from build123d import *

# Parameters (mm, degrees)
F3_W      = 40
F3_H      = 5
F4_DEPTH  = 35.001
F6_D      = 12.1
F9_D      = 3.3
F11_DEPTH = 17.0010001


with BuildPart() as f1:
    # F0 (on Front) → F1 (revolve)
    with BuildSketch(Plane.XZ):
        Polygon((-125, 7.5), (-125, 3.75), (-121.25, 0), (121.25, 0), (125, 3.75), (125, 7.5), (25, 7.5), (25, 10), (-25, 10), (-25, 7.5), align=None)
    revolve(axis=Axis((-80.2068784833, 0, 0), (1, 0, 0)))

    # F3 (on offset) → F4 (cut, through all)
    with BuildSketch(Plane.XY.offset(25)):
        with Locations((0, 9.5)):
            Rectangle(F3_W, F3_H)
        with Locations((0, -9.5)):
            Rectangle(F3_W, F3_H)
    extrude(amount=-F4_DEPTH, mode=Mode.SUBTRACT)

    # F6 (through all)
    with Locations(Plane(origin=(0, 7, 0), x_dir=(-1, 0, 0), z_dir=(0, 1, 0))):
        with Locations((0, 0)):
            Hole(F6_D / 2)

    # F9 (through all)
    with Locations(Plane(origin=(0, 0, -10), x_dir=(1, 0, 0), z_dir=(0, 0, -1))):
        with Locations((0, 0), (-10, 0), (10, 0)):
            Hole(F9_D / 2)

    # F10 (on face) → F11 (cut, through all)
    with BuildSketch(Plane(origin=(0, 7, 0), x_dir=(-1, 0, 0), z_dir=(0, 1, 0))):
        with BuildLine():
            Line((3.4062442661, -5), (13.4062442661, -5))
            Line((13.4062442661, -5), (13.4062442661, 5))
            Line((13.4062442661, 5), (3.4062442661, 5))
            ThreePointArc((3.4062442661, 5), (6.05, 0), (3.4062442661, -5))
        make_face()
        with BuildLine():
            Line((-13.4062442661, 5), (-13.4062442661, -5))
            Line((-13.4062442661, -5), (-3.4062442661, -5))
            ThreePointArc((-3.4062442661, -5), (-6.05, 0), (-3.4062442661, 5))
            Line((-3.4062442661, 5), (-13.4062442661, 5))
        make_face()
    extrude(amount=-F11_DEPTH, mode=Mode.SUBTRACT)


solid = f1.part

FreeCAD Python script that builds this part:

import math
import FreeCAD as App
import Part
import Sketcher

V = App.Vector
Q = App.Units.Quantity

doc = App.newDocument("Part")
body = doc.addObject("PartDesign::Body", "Body")

sketch1 = doc.addObject("Sketcher::SketchObject", "Sketch")
body.addObject(sketch1)
sketch1.AttachmentSupport = (doc.XZ_Plane, [""])
sketch1.MapMode = "FlatFace"
sketch1.addGeometry(Part.LineSegment(V(-125, 7.5, 0), V(-125, 3.8, 0)), False)
sketch1.addGeometry(Part.LineSegment(V(-125, 3.8, 0), V(-121.2, 0, 0)), False)
sketch1.addGeometry(Part.LineSegment(V(-121.2, 0, 0), V(121.2, 0, 0)), False)
sketch1.addGeometry(Part.LineSegment(V(121.2, 0, 0), V(125, 3.8, 0)), False)
sketch1.addGeometry(Part.LineSegment(V(125, 3.8, 0), V(125, 7.5, 0)), False)
sketch1.addGeometry(Part.LineSegment(V(125, 7.5, 0), V(25, 7.5, 0)), False)
sketch1.addGeometry(Part.LineSegment(V(25, 7.5, 0), V(25, 10, 0)), False)
sketch1.addGeometry(Part.LineSegment(V(25, 10, 0), V(-25, 10, 0)), False)
sketch1.addGeometry(Part.LineSegment(V(-25, 10, 0), V(-25, 7.5, 0)), False)
sketch1.addGeometry(Part.LineSegment(V(-25, 7.5, 0), V(-125, 7.5, 0)), False)
sketch1.addConstraint(Sketcher.Constraint("Coincident", 0, 2, 1, 1))
sketch1.addConstraint(Sketcher.Constraint("Coincident", 1, 2, 2, 1))
sketch1.addConstraint(Sketcher.Constraint("Coincident", 2, 2, 3, 1))
sketch1.addConstraint(Sketcher.Constraint("Coincident", 3, 2, 4, 1))
sketch1.addConstraint(Sketcher.Constraint("Coincident", 4, 2, 5, 1))
sketch1.addConstraint(Sketcher.Constraint("Coincident", 5, 2, 6, 1))
sketch1.addConstraint(Sketcher.Constraint("Coincident", 6, 2, 7, 1))
sketch1.addConstraint(Sketcher.Constraint("Coincident", 7, 2, 8, 1))
sketch1.addConstraint(Sketcher.Constraint("Coincident", 8, 2, 9, 1))
sketch1.addConstraint(Sketcher.Constraint("Coincident", 9, 2, 0, 1))
sketch1.addConstraint(Sketcher.Constraint("Vertical", 0))
sketch1.addConstraint(Sketcher.Constraint("Horizontal", 2))
sketch1.addConstraint(Sketcher.Constraint("Vertical", 4))
sketch1.addConstraint(Sketcher.Constraint("Horizontal", 5))
sketch1.addConstraint(Sketcher.Constraint("Vertical", 6))
sketch1.addConstraint(Sketcher.Constraint("Horizontal", 7))
sketch1.addConstraint(Sketcher.Constraint("Vertical", 8))
sketch1.addConstraint(Sketcher.Constraint("Horizontal", 9))
sketch1.addConstraint(Sketcher.Constraint("Symmetric", 1, 2, 2, 2, -1, 1))
sketch1.addConstraint(Sketcher.Constraint("Symmetric", 0, 2, 3, 2, -2))
sketch1.addConstraint(Sketcher.Constraint("Symmetric", 5, 2, 8, 2, -2))
sketch1.addConstraint(Sketcher.Constraint("Perpendicular", 1, 3))
sketch1.addConstraint(Sketcher.Constraint("DistanceX", 5, 2, 5, 1, Q("100 mm")))
sketch1.addConstraint(Sketcher.Constraint("DistanceX", 7, 2, 7, 1, Q("50 mm")))
sketch1.addConstraint(Sketcher.Constraint("DistanceX", 2, 1, 2, 2, Q("242.5 mm")))
sketch1.addConstraint(Sketcher.Constraint("DistanceY", 6, 1, 6, 2, Q("2.5 mm")))
sketch1.addConstraint(Sketcher.Constraint("DistanceY", -1, 1, 6, 2, Q("10 mm")))
revolution = doc.addObject("PartDesign::Revolution", "Revolution")
body.addObject(revolution)
revolution.Profile = sketch1
revolution.ReferenceAxis = (sketch1, ["H_Axis"])
revolution.Angle = 360

sketch2 = doc.addObject("Sketcher::SketchObject", "Sketch001")
body.addObject(sketch2)
sketch2.AttachmentSupport = (doc.XY_Plane, [""])
sketch2.MapMode = "FlatFace"
sketch2.AttachmentOffset = App.Placement(V(0, 0, 25), App.Rotation())
sketch2.addGeometry(Part.LineSegment(V(-20, 12, 0), V(-20, 7, 0)), False)
sketch2.addGeometry(Part.LineSegment(V(-20, 7, 0), V(20, 7, 0)), False)
sketch2.addGeometry(Part.LineSegment(V(20, 7, 0), V(20, 12, 0)), False)
sketch2.addGeometry(Part.LineSegment(V(20, 12, 0), V(-20, 12, 0)), False)
sketch2.addGeometry(Part.LineSegment(V(-20, -7, 0), V(-20, -12, 0)), False)
sketch2.addGeometry(Part.LineSegment(V(-20, -12, 0), V(20, -12, 0)), False)
sketch2.addGeometry(Part.LineSegment(V(20, -12, 0), V(20, -7, 0)), False)
sketch2.addGeometry(Part.LineSegment(V(20, -7, 0), V(-20, -7, 0)), False)
sketch2.addConstraint(Sketcher.Constraint("Coincident", 0, 2, 1, 1))
sketch2.addConstraint(Sketcher.Constraint("Coincident", 1, 2, 2, 1))
sketch2.addConstraint(Sketcher.Constraint("Coincident", 2, 2, 3, 1))
sketch2.addConstraint(Sketcher.Constraint("Coincident", 3, 2, 0, 1))
sketch2.addConstraint(Sketcher.Constraint("Coincident", 4, 2, 5, 1))
sketch2.addConstraint(Sketcher.Constraint("Coincident", 5, 2, 6, 1))
sketch2.addConstraint(Sketcher.Constraint("Coincident", 6, 2, 7, 1))
sketch2.addConstraint(Sketcher.Constraint("Coincident", 7, 2, 4, 1))
sketch2.addConstraint(Sketcher.Constraint("Vertical", 0))
sketch2.addConstraint(Sketcher.Constraint("Horizontal", 1))
sketch2.addConstraint(Sketcher.Constraint("Vertical", 2))
sketch2.addConstraint(Sketcher.Constraint("Horizontal", 3))
sketch2.addConstraint(Sketcher.Constraint("Vertical", 4))
sketch2.addConstraint(Sketcher.Constraint("Horizontal", 5))
sketch2.addConstraint(Sketcher.Constraint("Vertical", 6))
sketch2.addConstraint(Sketcher.Constraint("Horizontal", 7))
sketch2.addConstraint(Sketcher.Constraint("Symmetric", 2, 2, 4, 2, -1, 1))
sketch2.addConstraint(Sketcher.Constraint("Symmetric", 0, 2, 6, 2, -1, 1))
sketch2.addConstraint(Sketcher.Constraint("Vertical", 3, 2, 4, 2))
sketch2.addConstraint(Sketcher.Constraint("DistanceX", 1, 1, 1, 2, Q("40 mm")))
sketch2.addConstraint(Sketcher.Constraint("DistanceY", 0, 2, 0, 1, Q("5 mm")))
sketch2.addConstraint(Sketcher.Constraint("DistanceY", -1, 1, 0, 2, Q("7 mm")))
pocket1 = doc.addObject("PartDesign::Pocket", "Pocket")
body.addObject(pocket1)
pocket1.Profile = sketch2
pocket1.Type = "ThroughAll"

sketch3 = doc.addObject("Sketcher::SketchObject", "Sketch002")
body.addObject(sketch3)
sketch3.AttachmentSupport = (doc.XZ_Plane, [""])
sketch3.MapMode = "FlatFace"
sketch3.AttachmentOffset = App.Placement(V(0, 0, -7), App.Rotation())
sketch3.addGeometry(Part.Circle(V(0, 0, 0), V(0, 0, 1), 6), False)
sketch3.addConstraint(Sketcher.Constraint("Coincident", 0, 3, -1, 1))
sketch3.addConstraint(Sketcher.Constraint("Diameter", 0, Q("12.1 mm")))
doc.recompute()
hole = doc.addObject("PartDesign::Hole", "Hole")
body.addObject(hole)
hole.Profile = sketch3
hole.ThreadType = "None"
hole.Diameter = 12.1
hole.DepthType = "ThroughAll"
hole.Reversed = True

sketch4 = doc.addObject("Sketcher::SketchObject", "Sketch003")
body.addObject(sketch4)
sketch4.AttachmentSupport = (doc.XY_Plane, [""])
sketch4.MapMode = "FlatFace"
sketch4.AttachmentOffset = App.Placement(V(0, 0, -10), App.Rotation())
sketch4.addGeometry(Part.Circle(V(0, 0, 0), V(0, 0, 1), 1.6), False)
sketch4.addGeometry(Part.Circle(V(-10, 0, 0), V(0, 0, 1), 1.6), False)
sketch4.addGeometry(Part.Circle(V(10, 0, 0), V(0, 0, 1), 1.6), False)
sketch4.addConstraint(Sketcher.Constraint("Coincident", 0, 3, -1, 1))
sketch4.addConstraint(Sketcher.Constraint("Equal", 0, 1))
sketch4.addConstraint(Sketcher.Constraint("Equal", 1, 2))
sketch4.addConstraint(Sketcher.Constraint("Symmetric", 1, 3, 2, 3, -1, 1))
sketch4.addConstraint(Sketcher.Constraint("PointOnObject", 1, 3, -1))
sketch4.addConstraint(Sketcher.Constraint("Diameter", 0, Q("3.3 mm")))
sketch4.addConstraint(Sketcher.Constraint("DistanceX", 1, 3, -1, 1, Q("10 mm")))
doc.recompute()
hole2 = doc.addObject("PartDesign::Hole", "Hole001")
body.addObject(hole2)
hole2.Profile = sketch4
hole2.ThreadType = "None"
hole2.Diameter = 3.3
hole2.DepthType = "ThroughAll"
hole2.Reversed = True

sketch5 = doc.addObject("Sketcher::SketchObject", "Sketch004")
body.addObject(sketch5)
sketch5.AttachmentSupport = (doc.XZ_Plane, [""])
sketch5.MapMode = "FlatFace"
sketch5.AttachmentOffset = App.Placement(V(0, 0, -7), App.Rotation())
sketch5.addGeometry(Part.LineSegment(V(-3, -5, 0), V(-13, -5, 0)), False)
sketch5.addGeometry(Part.LineSegment(V(-13, -5, 0), V(-13, 5, 0)), False)
sketch5.addGeometry(Part.LineSegment(V(-13, 5, 0), V(-3, 5, 0)), False)
sketch5.addGeometry(Part.ArcOfCircle(Part.Circle(V(0, 0, 0), V(0, 0, 1), 6), math.radians(124), math.radians(236)), False)
sketch5.addGeometry(Part.LineSegment(V(13, 5, 0), V(13, -5, 0)), False)
sketch5.addGeometry(Part.LineSegment(V(13, -5, 0), V(3, -5, 0)), False)
sketch5.addGeometry(Part.ArcOfCircle(Part.Circle(V(0, 0, 0), V(0, 0, 1), 6), math.radians(-56), math.radians(56)), False)
sketch5.addGeometry(Part.LineSegment(V(3, 5, 0), V(13, 5, 0)), False)
sketch5.addConstraint(Sketcher.Constraint("Coincident", 0, 2, 1, 1))
sketch5.addConstraint(Sketcher.Constraint("Coincident", 1, 2, 2, 1))
sketch5.addConstraint(Sketcher.Constraint("Coincident", 2, 2, 3, 1))
sketch5.addConstraint(Sketcher.Constraint("Coincident", 3, 2, 0, 1))
sketch5.addConstraint(Sketcher.Constraint("Coincident", 4, 2, 5, 1))
sketch5.addConstraint(Sketcher.Constraint("Coincident", 5, 2, 6, 1))
sketch5.addConstraint(Sketcher.Constraint("Coincident", 6, 2, 7, 1))
sketch5.addConstraint(Sketcher.Constraint("Coincident", 7, 2, 4, 1))
sketch5.addConstraint(Sketcher.Constraint("Horizontal", 0))
sketch5.addConstraint(Sketcher.Constraint("Vertical", 1))
sketch5.addConstraint(Sketcher.Constraint("Horizontal", 2))
sketch5.addConstraint(Sketcher.Constraint("Vertical", 4))
sketch5.addConstraint(Sketcher.Constraint("Horizontal", 5))
sketch5.addConstraint(Sketcher.Constraint("Horizontal", 7))
sketch5.addConstraint(Sketcher.Constraint("Coincident", 3, 3, -1, 1))
sketch5.addConstraint(Sketcher.Constraint("Coincident", 6, 3, -1, 1))
sketch5.addConstraint(Sketcher.Constraint("Equal", 3, 6))
sketch5.addConstraint(Sketcher.Constraint("Symmetric", 1, 2, 4, 2, -1, 1))
sketch5.addConstraint(Sketcher.Constraint("Horizontal", 3, 2, 4, 2))
sketch5.addConstraint(Sketcher.Constraint("Horizontal", 2, 2, 6, 2))
sketch5.addConstraint(Sketcher.Constraint("Equal", 7, 1))
sketch5.addConstraint(Sketcher.Constraint("DistanceX", 0, 2, 0, 1, Q("10 mm")))
sketch5.addConstraint(Sketcher.Constraint("Radius", 3, Q("6.05 mm")))
pocket2 = doc.addObject("PartDesign::Pocket", "Pocket001")
body.addObject(pocket2)
pocket2.Profile = sketch5
pocket2.Type = "ThroughAll"
pocket2.Reversed = True

doc.recompute()
